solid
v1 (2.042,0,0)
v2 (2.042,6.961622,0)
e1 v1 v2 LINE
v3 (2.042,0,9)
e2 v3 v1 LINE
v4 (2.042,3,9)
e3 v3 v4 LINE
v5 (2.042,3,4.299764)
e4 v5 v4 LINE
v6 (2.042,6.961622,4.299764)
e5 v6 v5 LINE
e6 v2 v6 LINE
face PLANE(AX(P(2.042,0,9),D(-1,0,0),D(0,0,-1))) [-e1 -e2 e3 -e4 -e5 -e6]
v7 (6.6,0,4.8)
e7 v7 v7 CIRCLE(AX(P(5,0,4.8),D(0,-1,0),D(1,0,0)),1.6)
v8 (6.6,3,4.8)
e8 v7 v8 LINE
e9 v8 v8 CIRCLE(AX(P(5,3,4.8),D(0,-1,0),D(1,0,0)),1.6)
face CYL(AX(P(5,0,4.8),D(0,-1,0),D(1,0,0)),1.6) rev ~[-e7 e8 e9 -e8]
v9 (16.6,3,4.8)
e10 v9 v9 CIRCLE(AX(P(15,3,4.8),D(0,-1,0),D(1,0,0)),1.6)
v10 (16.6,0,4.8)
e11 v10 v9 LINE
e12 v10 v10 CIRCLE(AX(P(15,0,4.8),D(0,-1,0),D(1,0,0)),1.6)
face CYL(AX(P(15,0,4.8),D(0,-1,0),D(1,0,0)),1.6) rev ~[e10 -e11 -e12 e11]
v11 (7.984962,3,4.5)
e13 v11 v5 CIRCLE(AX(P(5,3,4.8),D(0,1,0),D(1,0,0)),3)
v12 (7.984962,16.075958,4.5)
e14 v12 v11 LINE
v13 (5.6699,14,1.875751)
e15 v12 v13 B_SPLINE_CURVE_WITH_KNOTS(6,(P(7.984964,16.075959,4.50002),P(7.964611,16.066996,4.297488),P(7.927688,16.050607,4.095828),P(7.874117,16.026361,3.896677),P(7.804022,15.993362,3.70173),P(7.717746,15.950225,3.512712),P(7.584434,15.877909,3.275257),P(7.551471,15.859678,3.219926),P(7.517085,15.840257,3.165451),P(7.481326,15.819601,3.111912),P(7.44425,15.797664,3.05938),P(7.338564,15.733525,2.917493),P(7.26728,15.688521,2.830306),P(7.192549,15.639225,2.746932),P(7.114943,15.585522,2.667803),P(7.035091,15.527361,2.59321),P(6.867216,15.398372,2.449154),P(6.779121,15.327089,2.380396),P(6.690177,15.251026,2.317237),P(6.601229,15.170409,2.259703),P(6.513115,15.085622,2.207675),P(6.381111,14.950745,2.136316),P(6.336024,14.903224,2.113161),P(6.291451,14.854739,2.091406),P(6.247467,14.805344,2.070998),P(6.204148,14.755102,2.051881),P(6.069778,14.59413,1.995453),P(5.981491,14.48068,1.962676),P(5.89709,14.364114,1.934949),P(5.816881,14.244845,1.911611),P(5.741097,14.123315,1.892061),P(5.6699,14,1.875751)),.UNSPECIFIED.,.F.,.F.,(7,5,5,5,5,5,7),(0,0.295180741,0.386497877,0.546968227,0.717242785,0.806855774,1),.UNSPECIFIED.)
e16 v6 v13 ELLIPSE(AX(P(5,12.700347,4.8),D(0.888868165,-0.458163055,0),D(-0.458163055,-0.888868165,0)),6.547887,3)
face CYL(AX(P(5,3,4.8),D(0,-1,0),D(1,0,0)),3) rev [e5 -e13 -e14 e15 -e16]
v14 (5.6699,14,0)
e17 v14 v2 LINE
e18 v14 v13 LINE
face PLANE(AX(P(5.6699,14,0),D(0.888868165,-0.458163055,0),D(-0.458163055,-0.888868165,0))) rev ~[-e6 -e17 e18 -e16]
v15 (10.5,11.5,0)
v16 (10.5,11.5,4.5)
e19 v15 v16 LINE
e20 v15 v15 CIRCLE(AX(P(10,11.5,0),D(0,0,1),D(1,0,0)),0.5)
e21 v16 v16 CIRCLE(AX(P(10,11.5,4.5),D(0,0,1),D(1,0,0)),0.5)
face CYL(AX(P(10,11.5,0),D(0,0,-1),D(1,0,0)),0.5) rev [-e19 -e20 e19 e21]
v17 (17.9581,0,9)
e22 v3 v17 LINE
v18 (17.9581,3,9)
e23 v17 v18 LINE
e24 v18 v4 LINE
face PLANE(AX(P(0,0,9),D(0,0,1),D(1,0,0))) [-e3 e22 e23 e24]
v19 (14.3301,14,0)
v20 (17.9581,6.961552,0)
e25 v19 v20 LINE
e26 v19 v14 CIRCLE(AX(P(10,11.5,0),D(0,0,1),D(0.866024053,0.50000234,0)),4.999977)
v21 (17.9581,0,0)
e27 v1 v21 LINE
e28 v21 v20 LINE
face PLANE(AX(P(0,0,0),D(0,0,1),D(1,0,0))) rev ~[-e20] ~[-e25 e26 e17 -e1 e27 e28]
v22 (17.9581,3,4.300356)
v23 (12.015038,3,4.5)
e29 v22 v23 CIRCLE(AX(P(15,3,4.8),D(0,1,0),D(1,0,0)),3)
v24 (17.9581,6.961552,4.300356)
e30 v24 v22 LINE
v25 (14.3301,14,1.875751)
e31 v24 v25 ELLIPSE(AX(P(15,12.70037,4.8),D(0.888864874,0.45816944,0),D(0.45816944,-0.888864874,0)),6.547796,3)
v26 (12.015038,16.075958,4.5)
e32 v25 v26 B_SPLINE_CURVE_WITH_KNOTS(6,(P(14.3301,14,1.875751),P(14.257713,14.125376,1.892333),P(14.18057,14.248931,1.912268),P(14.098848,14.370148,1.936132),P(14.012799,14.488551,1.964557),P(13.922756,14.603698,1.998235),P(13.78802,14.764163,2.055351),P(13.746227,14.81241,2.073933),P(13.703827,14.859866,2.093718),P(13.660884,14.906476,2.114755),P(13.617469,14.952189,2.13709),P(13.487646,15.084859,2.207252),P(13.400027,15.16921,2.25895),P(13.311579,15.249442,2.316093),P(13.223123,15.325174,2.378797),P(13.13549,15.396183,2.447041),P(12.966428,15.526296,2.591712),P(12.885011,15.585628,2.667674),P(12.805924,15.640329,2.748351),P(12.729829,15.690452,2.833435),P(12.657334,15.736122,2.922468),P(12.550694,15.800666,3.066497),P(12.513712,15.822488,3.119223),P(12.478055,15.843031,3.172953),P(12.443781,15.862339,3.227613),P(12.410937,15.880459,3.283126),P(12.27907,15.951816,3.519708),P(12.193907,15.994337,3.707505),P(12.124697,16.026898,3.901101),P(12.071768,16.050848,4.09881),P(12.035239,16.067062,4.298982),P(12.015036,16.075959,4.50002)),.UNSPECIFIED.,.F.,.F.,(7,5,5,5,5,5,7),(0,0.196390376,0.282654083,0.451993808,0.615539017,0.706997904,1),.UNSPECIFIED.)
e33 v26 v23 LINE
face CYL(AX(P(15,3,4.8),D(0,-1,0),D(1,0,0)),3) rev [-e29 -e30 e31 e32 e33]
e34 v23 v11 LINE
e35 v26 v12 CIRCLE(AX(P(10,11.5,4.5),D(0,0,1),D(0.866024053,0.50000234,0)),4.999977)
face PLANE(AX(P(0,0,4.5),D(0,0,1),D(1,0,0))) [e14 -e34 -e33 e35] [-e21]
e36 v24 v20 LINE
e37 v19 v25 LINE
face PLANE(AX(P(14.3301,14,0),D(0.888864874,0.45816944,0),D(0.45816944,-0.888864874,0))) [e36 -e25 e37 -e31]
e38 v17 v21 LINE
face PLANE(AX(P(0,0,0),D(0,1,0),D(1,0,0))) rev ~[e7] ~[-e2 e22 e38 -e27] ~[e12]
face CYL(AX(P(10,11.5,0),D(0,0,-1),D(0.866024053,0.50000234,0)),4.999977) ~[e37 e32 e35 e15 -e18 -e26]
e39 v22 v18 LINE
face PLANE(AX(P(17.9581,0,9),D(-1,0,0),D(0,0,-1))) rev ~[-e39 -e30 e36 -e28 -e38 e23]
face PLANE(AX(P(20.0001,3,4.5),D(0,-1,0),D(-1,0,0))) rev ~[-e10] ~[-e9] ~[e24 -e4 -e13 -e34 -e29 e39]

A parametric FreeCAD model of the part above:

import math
import FreeCAD as App
import Part
import Sketcher

V = App.Vector
Q = App.Units.Quantity


def add_polygon(sketch, points):
    """Adds a closed chain of lines whose ends are joined by coincident constraints."""
    first, n = sketch.GeometryCount, len(points)
    for a, b in zip(points, points[1:] + points[:1]):
        sketch.addGeometry(Part.LineSegment(App.Vector(*a, 0), App.Vector(*b, 0)), False)
    for i in range(n):
        sketch.addConstraint(Sketcher.Constraint("Coincident", first + i, 2, first + (i + 1) % n, 1))

doc = App.newDocument("Part")
body = doc.addObject("PartDesign::Body", "Body")

# Sketch on XY plane
sketch1 = doc.addObject("Sketcher::SketchObject", "Sketch")
body.addObject(sketch1)
sketch1.AttachmentSupport = (doc.XY_Plane, [""])
sketch1.MapMode = "FlatFace"
sketch1.addGeometry(Part.LineSegment(V(0, 3, 0), V(0, 0, 0)), False)
sketch1.addGeometry(Part.LineSegment(V(0, 0, 0), V(20, 0, 0)), False)
sketch1.addGeometry(Part.LineSegment(V(20, 0, 0), V(20, 3, 0)), False)
sketch1.addGeometry(Part.LineSegment(V(20, 3, 0), V(14.3, 14, 0)), False)
sketch1.addGeometry(Part.ArcOfCircle(Part.Circle(V(10, 11.5, 0), V(0, 0, 1), 5), math.radians(30), math.radians(150)), False)
sketch1.addGeometry(Part.LineSegment(V(5.7, 14, 0), V(0, 3, 0)), False)
sketch1.addGeometry(Part.Circle(V(10, 11.5, 0), V(0, 0, 1), 0.5), False)
sketch1.addConstraint(Sketcher.Constraint("Coincident", 0, 2, 1, 1))
sketch1.addConstraint(Sketcher.Constraint("Coincident", 1, 2, 2, 1))
sketch1.addConstraint(Sketcher.Constraint("Coincident", 2, 2, 3, 1))
sketch1.addConstraint(Sketcher.Constraint("Coincident", 3, 2, 4, 1))
sketch1.addConstraint(Sketcher.Constraint("Coincident", 4, 2, 5, 1))
sketch1.addConstraint(Sketcher.Constraint("Coincident", 5, 2, 0, 1))
sketch1.addConstraint(Sketcher.Constraint("Vertical", 0))
sketch1.addConstraint(Sketcher.Constraint("Horizontal", 1))
sketch1.addConstraint(Sketcher.Constraint("Vertical", 2))
sketch1.addConstraint(Sketcher.Constraint("Coincident", 0, 2, -1, 1))
sketch1.addConstraint(Sketcher.Constraint("Coincident", 6, 3, 4, 3))
sketch1.addConstraint(Sketcher.Constraint("Horizontal", 3, 2, 4, 2))
sketch1.addConstraint(Sketcher.Constraint("Horizontal", 2, 2, 5, 2))
sketch1.addConstraint(Sketcher.Constraint("Equal", 3, 5))
sketch1.addConstraint(Sketcher.Constraint("Diameter", 6, Q("1 mm")))
sketch1.addConstraint(Sketcher.Constraint("Radius", 4, Q("5 mm")))
sketch1.addConstraint(Sketcher.Constraint("DistanceY", 0, 2, 0, 1, Q("3 mm")))
sketch1.addConstraint(Sketcher.Constraint("DistanceX", -1, 1, 4, 3, Q("10 mm")))
sketch1.addConstraint(Sketcher.Constraint("DistanceY", -1, 1, 3, 2, Q("14 mm")))
sketch1.addConstraint(Sketcher.Constraint("DistanceY", -1, 1, 4, 3, Q("11.5 mm")))
pad1 = doc.addObject("PartDesign::Pad", "Pad")
body.addObject(pad1)
pad1.Profile = sketch1
pad1.Length = 4.5

# Sketch on XY plane
sketch2 = doc.addObject("Sketcher::SketchObject", "Sketch001")
body.addObject(sketch2)
sketch2.AttachmentSupport = (doc.XY_Plane, [""])
sketch2.MapMode = "FlatFace"
sketch2.AttachmentOffset = App.Placement(V(0, 0, 4.5), App.Rotation())
add_polygon(sketch2, [(20, 3), (0, 3), (0, 0), (20, 0)])  # lines 0-3
sketch2.addConstraint(Sketcher.Constraint("Horizontal", 0))
sketch2.addConstraint(Sketcher.Constraint("Vertical", 1))
sketch2.addConstraint(Sketcher.Constraint("Horizontal", 2))
sketch2.addConstraint(Sketcher.Constraint("Vertical", 3))
sketch2.addConstraint(Sketcher.Constraint("Coincident", 1, 2, -1, 1))
sketch2.addConstraint(Sketcher.Constraint("DistanceX", 0, 2, 0, 1, Q("20 mm")))
sketch2.addConstraint(Sketcher.Constraint("DistanceY", 1, 2, 1, 1, Q("3 mm")))
pad2 = doc.addObject("PartDesign::Pad", "Pad001")
body.addObject(pad2)
pad2.Profile = sketch2
pad2.Length = 4.5

# Sketch on XZ plane
sketch3 = doc.addObject("Sketcher::SketchObject", "Sketch002")
body.addObject(sketch3)
sketch3.AttachmentSupport = (doc.XZ_Plane, [""])
sketch3.MapMode = "FlatFace"
sketch3.addGeometry(Part.Circle(V(5, 4.8, 0), V(0, 0, 1), 1.6), False)
sketch3.addGeometry(Part.Circle(V(15, 4.8, 0), V(0, 0, 1), 1.6), False)
sketch3.addConstraint(Sketcher.Constraint("Equal", 0, 1))
sketch3.addConstraint(Sketcher.Constraint("Horizontal", 0, 3, 1, 3))
sketch3.addConstraint(Sketcher.Constraint("Diameter", 0, Q("3.2 mm")))
sketch3.addConstraint(Sketcher.Constraint("DistanceY", -1, 1, 0, 3, Q("4.8 mm")))
sketch3.addConstraint(Sketcher.Constraint("DistanceX", -1, 1, 0, 3, Q("5 mm")))
sketch3.addConstraint(Sketcher.Constraint("DistanceX", -1, 1, 1, 3, Q("15 mm")))
pocket1 = doc.addObject("PartDesign::Pocket", "Pocket")
body.addObject(pocket1)
pocket1.Profile = sketch3
pocket1.Type = "ThroughAll"

# Sketch on XZ plane
sketch4 = doc.addObject("Sketcher::SketchObject", "Sketch003")
body.addObject(sketch4)
sketch4.AttachmentSupport = (doc.XZ_Plane, [""])
sketch4.MapMode = "FlatFace"
sketch4.AttachmentOffset = App.Placement(V(0, 0, -3), App.Rotation())
sketch4.addGeometry(Part.Circle(V(5, 4.8, 0), V(0, 0, 1), 3), False)
sketch4.addGeometry(Part.Circle(V(5, 4.8, 0), V(0, 0, 1), 1.6), False)
sketch4.addGeometry(Part.Circle(V(15, 4.8, 0), V(0, 0, 1), 3), False)
sketch4.addGeometry(Part.Circle(V(15, 4.8, 0), V(0, 0, 1), 1.6), False)
sketch4.addConstraint(Sketcher.Constraint("Coincident", 1, 3, 0, 3))
sketch4.addConstraint(Sketcher.Constraint("Coincident", 3, 3, 2, 3))
sketch4.addConstraint(Sketcher.Constraint("Equal", 0, 2))
sketch4.addConstraint(Sketcher.Constraint("Equal", 1, 3))
sketch4.addConstraint(Sketcher.Constraint("Horizontal", 1, 3, 2, 3))
sketch4.addConstraint(Sketcher.Constraint("Diameter", 0, Q("6 mm")))
sketch4.addConstraint(Sketcher.Constraint("Diameter", 1, Q("3.2 mm")))
sketch4.addConstraint(Sketcher.Constraint("DistanceY", -1, 1, 0, 3, Q("4.8 mm")))
sketch4.addConstraint(Sketcher.Constraint("DistanceX", -1, 1, 0, 3, Q("5 mm")))
sketch4.addConstraint(Sketcher.Constraint("DistanceX", -1, 1, 2, 3, Q("15 mm")))
pocket2 = doc.addObject("PartDesign::Pocket", "Pocket001")
body.addObject(pocket2)
pocket2.Profile = sketch4
pocket2.Length = 13.076

# Sketch on XZ plane
sketch5 = doc.addObject("Sketcher::SketchObject", "Sketch004")
body.addObject(sketch5)
sketch5.AttachmentSupport = (doc.XZ_Plane, [""])
sketch5.MapMode = "FlatFace"
add_polygon(sketch5, [(0, 9), (0, 0), (2, 0), (2, 9)])  # lines 0-3
sketch5.addConstraint(Sketcher.Constraint("Vertical", 0))
sketch5.addConstraint(Sketcher.Constraint("Horizontal", 1))
sketch5.addConstraint(Sketcher.Constraint("Vertical", 2))
sketch5.addConstraint(Sketcher.Constraint("Horizontal", 3))
sketch5.addConstraint(Sketcher.Constraint("Coincident", 0, 2, -1, 1))
sketch5.addConstraint(Sketcher.Constraint("DistanceY", 0, 2, 0, 1, Q("9 mm")))
sketch5.addConstraint(Sketcher.Constraint("DistanceX", 1, 1, 1, 2, Q("2.042 mm")))
pocket3 = doc.addObject("PartDesign::Pocket", "Pocket002")
body.addObject(pocket3)
pocket3.Profile = sketch5
pocket3.Length = 6.9616

# Sketch on XZ plane
sketch6 = doc.addObject("Sketcher::SketchObject", "Sketch005")
body.addObject(sketch6)
sketch6.AttachmentSupport = (doc.XZ_Plane, [""])
sketch6.MapMode = "FlatFace"
add_polygon(sketch6, [(20, 0), (20, 9), (18, 9), (18, 0)])  # lines 0-3
sketch6.addConstraint(Sketcher.Constraint("Vertical", 0))
sketch6.addConstraint(Sketcher.Constraint("Horizontal", 1))
sketch6.addConstraint(Sketcher.Constraint("Vertical", 2))
sketch6.addConstraint(Sketcher.Constraint("Horizontal", 3))
sketch6.addConstraint(Sketcher.Constraint("PointOnObject", 2, 2, -1))
sketch6.addConstraint(Sketcher.Constraint("DistanceY", 0, 1, 0, 2, Q("9 mm")))
sketch6.addConstraint(Sketcher.Constraint("DistanceX", -1, 1, 0, 2, Q("20 mm")))
sketch6.addConstraint(Sketcher.Constraint("DistanceX", 1, 2, 1, 1, Q("2.042 mm")))
pocket4 = doc.addObject("PartDesign::Pocket", "Pocket003")
body.addObject(pocket4)
pocket4.Profile = sketch6
pocket4.Length = 6.9616

doc.recompute()
